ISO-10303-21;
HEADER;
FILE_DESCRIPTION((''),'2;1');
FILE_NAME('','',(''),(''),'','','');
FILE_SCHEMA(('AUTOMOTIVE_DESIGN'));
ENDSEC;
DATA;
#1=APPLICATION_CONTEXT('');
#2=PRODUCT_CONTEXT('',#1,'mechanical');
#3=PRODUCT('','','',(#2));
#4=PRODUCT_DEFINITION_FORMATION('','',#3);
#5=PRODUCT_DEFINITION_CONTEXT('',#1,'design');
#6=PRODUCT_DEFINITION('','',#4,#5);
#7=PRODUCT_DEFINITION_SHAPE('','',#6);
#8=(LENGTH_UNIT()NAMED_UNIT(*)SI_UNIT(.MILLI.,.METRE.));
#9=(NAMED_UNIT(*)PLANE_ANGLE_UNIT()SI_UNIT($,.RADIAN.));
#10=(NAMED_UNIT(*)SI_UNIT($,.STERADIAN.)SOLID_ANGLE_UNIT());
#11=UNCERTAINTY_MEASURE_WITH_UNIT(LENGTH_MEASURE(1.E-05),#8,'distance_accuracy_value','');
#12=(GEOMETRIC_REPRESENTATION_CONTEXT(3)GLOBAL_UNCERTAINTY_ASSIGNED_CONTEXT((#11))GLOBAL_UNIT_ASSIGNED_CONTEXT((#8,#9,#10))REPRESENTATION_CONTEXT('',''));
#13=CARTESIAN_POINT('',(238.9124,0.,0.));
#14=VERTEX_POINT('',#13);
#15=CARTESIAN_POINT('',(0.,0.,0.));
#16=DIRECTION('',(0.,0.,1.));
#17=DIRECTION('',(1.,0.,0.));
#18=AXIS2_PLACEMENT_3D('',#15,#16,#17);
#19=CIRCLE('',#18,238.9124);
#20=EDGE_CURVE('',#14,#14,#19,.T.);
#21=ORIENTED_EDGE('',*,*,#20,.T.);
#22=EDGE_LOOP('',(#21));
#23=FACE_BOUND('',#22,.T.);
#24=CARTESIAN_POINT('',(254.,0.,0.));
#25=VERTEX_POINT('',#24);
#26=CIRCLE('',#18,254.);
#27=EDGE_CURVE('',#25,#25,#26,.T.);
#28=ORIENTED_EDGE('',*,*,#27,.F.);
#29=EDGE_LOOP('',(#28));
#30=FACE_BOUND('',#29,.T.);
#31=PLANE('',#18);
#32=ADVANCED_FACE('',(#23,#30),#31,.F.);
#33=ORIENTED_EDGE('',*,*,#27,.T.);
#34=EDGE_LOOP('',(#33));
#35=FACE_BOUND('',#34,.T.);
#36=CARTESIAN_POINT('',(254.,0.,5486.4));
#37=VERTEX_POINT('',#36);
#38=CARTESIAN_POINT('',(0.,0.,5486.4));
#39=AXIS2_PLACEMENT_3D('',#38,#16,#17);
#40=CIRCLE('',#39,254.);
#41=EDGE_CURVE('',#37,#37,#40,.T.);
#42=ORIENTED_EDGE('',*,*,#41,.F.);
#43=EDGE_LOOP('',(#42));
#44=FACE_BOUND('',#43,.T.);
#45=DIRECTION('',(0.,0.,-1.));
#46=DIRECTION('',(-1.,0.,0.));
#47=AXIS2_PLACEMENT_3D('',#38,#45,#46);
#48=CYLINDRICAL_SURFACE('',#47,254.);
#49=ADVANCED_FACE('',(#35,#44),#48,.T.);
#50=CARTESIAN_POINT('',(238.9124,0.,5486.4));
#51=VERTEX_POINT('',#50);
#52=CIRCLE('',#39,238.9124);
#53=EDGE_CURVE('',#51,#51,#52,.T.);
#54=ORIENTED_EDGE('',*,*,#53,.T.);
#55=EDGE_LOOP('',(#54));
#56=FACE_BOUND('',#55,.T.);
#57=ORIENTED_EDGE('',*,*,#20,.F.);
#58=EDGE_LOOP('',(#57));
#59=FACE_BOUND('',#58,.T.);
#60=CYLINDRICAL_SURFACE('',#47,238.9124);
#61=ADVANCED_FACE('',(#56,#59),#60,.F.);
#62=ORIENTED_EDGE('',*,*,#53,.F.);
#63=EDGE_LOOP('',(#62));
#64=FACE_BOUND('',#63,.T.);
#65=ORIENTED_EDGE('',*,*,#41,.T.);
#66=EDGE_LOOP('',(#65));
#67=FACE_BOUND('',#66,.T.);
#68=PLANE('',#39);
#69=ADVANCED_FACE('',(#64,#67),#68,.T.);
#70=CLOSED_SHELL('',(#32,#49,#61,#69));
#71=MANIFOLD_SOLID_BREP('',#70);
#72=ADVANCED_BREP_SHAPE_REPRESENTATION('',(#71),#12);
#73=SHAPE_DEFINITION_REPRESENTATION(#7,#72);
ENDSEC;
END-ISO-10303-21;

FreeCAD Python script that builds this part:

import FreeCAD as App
import Part
import Sketcher
Q = App.Units.Quantity

doc = App.newDocument("Part")
body = doc.addObject("PartDesign::Body", "Body")

# Sketch on XY plane
sketch1 = body.newObject("Sketcher::SketchObject", "Sketch")
sketch1.AttachmentSupport = (doc.getObject("XY_Plane"), [""])
sketch1.MapMode = "FlatFace"
sketch1.addGeometry([
    Part.Circle(App.Vector(0, 0, 0), App.Vector(0, 0, 1), 254),
    Part.Circle(App.Vector(0, 0, 0), App.Vector(0, 0, 1), 239),
], False)
sketch1.addConstraint([
    Sketcher.Constraint("Coincident", 0, 3, -1, 1),
    Sketcher.Constraint("Coincident", 1, 3, -1, 1),
    Sketcher.Constraint("Diameter", 0, Q("20 in")),
    Sketcher.Constraint("Diameter", 1, Q("18.812 in")),
])
pad1 = body.newObject("PartDesign::Pad", "Pad")
pad1.Profile = sketch1
pad1.Length = Q("216 in")

doc.recompute()
